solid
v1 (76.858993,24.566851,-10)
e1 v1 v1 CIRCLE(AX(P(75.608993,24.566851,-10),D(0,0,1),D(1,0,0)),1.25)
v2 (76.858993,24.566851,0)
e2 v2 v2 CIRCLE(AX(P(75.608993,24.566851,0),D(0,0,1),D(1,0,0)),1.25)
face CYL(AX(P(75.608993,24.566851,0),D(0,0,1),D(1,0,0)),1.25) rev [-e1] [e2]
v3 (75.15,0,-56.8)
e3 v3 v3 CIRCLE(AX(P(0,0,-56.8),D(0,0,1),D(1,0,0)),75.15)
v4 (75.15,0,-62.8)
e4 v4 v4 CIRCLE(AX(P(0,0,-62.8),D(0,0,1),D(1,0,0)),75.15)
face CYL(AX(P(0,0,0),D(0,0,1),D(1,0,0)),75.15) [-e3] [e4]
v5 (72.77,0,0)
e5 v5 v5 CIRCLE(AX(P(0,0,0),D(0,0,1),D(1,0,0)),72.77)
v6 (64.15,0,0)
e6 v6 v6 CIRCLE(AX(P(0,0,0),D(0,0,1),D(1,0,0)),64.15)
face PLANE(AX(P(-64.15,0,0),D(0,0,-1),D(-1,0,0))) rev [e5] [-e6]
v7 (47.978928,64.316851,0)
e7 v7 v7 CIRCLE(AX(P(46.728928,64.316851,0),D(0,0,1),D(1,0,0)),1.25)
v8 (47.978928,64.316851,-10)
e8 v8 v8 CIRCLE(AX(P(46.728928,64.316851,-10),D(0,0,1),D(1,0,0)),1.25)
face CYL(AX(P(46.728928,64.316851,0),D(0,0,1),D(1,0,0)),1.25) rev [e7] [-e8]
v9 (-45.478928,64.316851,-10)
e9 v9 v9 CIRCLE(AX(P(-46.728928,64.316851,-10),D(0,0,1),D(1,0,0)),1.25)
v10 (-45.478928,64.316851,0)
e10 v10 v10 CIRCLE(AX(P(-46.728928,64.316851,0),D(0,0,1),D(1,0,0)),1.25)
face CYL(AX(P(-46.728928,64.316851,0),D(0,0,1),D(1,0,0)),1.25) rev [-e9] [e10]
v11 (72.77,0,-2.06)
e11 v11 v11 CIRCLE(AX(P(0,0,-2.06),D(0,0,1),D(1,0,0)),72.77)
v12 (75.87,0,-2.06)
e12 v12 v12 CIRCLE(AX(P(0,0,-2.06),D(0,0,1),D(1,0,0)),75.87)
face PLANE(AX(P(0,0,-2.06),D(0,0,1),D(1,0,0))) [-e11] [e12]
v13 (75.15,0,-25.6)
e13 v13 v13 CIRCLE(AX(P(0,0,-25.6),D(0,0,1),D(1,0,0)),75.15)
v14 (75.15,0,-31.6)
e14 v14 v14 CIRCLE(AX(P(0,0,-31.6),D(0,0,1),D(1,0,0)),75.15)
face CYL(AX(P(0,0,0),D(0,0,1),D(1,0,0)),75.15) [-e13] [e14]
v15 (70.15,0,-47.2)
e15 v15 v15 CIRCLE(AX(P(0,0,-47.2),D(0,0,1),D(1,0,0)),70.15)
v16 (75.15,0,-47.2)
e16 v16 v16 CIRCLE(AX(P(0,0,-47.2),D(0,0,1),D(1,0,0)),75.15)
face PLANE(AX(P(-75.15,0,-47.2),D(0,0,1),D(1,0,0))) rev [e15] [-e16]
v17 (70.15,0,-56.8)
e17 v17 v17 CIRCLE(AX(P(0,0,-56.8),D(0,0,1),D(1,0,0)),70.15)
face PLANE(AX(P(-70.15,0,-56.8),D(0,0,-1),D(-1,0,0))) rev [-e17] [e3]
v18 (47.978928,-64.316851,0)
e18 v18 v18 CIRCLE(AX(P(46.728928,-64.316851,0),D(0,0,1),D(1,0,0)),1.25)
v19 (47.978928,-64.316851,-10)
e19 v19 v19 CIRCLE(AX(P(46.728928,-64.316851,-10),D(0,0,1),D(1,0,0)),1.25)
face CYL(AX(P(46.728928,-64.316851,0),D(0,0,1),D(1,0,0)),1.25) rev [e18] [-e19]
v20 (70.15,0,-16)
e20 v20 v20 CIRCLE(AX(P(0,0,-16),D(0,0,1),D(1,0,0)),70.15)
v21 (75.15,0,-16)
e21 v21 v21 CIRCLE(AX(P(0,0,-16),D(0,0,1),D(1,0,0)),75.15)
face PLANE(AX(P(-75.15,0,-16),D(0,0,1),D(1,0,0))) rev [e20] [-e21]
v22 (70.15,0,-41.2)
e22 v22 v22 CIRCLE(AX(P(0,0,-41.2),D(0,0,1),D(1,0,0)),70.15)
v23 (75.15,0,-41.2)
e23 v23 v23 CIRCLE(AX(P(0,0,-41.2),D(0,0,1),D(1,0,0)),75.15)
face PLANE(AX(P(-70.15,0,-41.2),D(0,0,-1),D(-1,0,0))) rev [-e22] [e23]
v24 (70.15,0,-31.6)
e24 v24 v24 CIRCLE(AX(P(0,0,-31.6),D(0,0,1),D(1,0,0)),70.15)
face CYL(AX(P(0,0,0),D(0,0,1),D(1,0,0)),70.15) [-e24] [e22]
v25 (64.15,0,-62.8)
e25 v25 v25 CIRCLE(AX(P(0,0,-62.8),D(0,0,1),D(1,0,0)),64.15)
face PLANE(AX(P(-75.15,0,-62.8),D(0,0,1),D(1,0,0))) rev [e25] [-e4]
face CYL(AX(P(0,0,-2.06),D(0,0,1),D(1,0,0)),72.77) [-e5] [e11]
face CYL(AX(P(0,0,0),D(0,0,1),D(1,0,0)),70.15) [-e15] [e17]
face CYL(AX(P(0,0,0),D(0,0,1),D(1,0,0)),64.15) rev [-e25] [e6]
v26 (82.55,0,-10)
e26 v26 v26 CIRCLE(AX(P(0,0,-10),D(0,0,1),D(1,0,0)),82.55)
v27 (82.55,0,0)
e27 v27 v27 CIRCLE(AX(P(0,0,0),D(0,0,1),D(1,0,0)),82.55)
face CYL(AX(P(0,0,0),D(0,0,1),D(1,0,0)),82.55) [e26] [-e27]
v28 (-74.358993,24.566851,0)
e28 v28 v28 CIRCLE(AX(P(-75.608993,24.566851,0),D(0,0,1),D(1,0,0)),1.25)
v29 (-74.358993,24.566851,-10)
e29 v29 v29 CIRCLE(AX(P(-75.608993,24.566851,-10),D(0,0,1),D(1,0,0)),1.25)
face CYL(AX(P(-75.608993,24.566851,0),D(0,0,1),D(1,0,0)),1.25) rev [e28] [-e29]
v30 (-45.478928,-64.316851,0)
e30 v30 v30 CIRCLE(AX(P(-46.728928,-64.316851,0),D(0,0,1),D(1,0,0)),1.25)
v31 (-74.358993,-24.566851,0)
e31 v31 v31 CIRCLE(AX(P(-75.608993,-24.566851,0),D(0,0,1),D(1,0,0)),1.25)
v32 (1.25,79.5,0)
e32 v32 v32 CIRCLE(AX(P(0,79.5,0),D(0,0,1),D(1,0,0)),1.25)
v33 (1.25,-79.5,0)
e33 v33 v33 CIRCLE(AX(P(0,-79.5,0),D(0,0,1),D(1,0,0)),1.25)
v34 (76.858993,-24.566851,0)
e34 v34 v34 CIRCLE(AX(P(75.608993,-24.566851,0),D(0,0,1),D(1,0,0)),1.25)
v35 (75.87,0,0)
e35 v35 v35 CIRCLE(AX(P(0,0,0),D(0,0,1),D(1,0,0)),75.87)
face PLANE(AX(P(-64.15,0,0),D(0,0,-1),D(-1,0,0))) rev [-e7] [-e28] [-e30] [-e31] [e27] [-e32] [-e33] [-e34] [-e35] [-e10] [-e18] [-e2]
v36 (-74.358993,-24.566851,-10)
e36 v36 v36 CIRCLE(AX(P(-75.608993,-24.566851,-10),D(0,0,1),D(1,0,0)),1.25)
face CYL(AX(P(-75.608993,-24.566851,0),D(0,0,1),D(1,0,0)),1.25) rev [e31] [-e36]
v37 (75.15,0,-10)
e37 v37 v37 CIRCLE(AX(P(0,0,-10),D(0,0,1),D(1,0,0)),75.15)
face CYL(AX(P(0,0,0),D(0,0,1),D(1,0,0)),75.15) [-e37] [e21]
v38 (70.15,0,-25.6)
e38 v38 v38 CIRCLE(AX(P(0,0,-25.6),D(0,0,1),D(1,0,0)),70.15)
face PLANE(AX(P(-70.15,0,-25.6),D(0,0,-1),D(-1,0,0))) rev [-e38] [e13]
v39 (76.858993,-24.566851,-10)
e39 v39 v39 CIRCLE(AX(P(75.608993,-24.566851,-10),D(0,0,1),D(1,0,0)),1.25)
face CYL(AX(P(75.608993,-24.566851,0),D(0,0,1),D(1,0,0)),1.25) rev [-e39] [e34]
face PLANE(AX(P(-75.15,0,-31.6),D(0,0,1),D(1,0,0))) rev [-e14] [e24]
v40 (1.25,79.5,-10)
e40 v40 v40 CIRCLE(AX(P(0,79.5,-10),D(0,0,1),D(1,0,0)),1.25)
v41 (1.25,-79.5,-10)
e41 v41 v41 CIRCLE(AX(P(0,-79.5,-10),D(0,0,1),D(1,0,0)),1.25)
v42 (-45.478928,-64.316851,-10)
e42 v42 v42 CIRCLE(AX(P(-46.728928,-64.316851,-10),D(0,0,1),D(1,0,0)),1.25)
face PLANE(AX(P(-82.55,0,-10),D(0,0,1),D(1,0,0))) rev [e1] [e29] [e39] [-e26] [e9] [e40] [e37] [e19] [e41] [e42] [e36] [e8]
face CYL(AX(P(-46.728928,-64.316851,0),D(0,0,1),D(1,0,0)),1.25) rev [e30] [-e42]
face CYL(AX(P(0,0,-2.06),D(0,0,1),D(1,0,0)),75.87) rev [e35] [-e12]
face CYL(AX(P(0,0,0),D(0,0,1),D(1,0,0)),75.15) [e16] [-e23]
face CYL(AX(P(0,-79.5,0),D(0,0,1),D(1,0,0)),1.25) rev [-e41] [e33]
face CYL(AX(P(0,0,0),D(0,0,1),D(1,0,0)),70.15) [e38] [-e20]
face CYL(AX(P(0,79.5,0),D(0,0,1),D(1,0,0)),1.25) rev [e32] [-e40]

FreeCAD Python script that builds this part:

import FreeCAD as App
import Part
import Sketcher


def add_polygon(sketch, points):
    """Adds a closed chain of lines whose ends are joined by coincident constraints."""
    first, n = sketch.GeometryCount, len(points)
    for a, b in zip(points, points[1:] + points[:1]):
        sketch.addGeometry(Part.LineSegment(App.Vector(*a, 0), App.Vector(*b, 0)), False)
    for i in range(n):
        sketch.addConstraint(Sketcher.Constraint("Coincident", first + i, 2, first + (i + 1) % n, 1))

doc = App.newDocument("Part")
body = doc.addObject("PartDesign::Body", "Body")

# Sketch on XZ plane
sketch1 = body.newObject("Sketcher::SketchObject", "Sketch")
sketch1.AttachmentSupport = (doc.getObject("XZ_Plane"), [""])
sketch1.MapMode = "FlatFace"
add_polygon(sketch1, [(-82.55, -10), (-82.55, 0), (-64.15, 0), (-64.15, -62.8), (-75.15, -62.8), (-75.15, -56.8), (-70.15, -56.8), (-70.15, -47.2), (-75.15, -47.2), (-75.15, -41.2), (-70.15, -41.2), (-70.15, -31.6), (-75.15, -31.6), (-75.15, -25.6), (-70.15, -25.6), (-70.15, -16), (-75.15, -16), (-75.15, -10)])  # lines 0-17
sketch1.addConstraint([
    Sketcher.Constraint("Vertical", 0),
    Sketcher.Constraint("Horizontal", 1),
    Sketcher.Constraint("Vertical", 2),
    Sketcher.Constraint("Horizontal", 3),
    Sketcher.Constraint("Vertical", 4),
    Sketcher.Constraint("Horizontal", 5),
    Sketcher.Constraint("Vertical", 6),
    Sketcher.Constraint("Horizontal", 7),
    Sketcher.Constraint("Vertical", 8),
    Sketcher.Constraint("Horizontal", 9),
    Sketcher.Constraint("Vertical", 10),
    Sketcher.Constraint("Horizontal", 11),
    Sketcher.Constraint("Vertical", 12),
    Sketcher.Constraint("Horizontal", 13),
    Sketcher.Constraint("Vertical", 14),
    Sketcher.Constraint("Horizontal", 15),
    Sketcher.Constraint("Vertical", 16),
    Sketcher.Constraint("Horizontal", 17),
    Sketcher.Constraint("PointOnObject", 0, 2, -1),
    Sketcher.Constraint("Vertical", 4, 2, 7, 2),
    Sketcher.Constraint("Vertical", 6, 2, 9, 2),
    Sketcher.Constraint("Vertical", 8, 2, 11, 2),
    Sketcher.Constraint("Vertical", 10, 2, 13, 2),
    Sketcher.Constraint("Vertical", 12, 2, 15, 2),
    Sketcher.Constraint("Equal", 4, 8),
    Sketcher.Constraint("Equal", 6, 10),
    Sketcher.Constraint("Equal", 8, 12),
    Sketcher.Constraint("Equal", 10, 14),
    Sketcher.Constraint("Equal", 12, 16),
    Sketcher.Constraint("DistanceX", 3, 2, 3, 1, 11.0),
    Sketcher.Constraint("DistanceX", 5, 1, 5, 2, 5.0),
    Sketcher.Constraint("DistanceY", 0, 1, 0, 2, 10.0),
    Sketcher.Constraint("DistanceY", 4, 1, 4, 2, 6.0),
    Sketcher.Constraint("DistanceX", 1, 1, 1, 2, 18.4),
    Sketcher.Constraint("DistanceY", 2, 2, 2, 1, 62.8),
    Sketcher.Constraint("DistanceX", 0, 2, -1, 1, 82.55),
])
revolution = body.newObject("PartDesign::Revolution", "Revolution")
revolution.Profile = sketch1
revolution.ReferenceAxis = (sketch1, ["V_Axis"])
revolution.Angle = 360

# Sketch on XY plane
sketch2 = body.newObject("Sketcher::SketchObject", "Sketch001")
sketch2.AttachmentSupport = (doc.getObject("XY_Plane"), [""])
sketch2.MapMode = "FlatFace"
sketch2.addGeometry([
    Part.Circle(App.Vector(0, 79.5, 0), App.Vector(0, 0, 1), 1.25),  # 0
    Part.Circle(App.Vector(46.728928, 64.316851, 0), App.Vector(0, 0, 1), 1.25),  # 1
    Part.Circle(App.Vector(75.608993, 24.566851, 0), App.Vector(0, 0, 1), 1.25),  # 2
    Part.Circle(App.Vector(75.608993, -24.566851, 0), App.Vector(0, 0, 1), 1.25),  # 3
    Part.Circle(App.Vector(46.728928, -64.316851, 0), App.Vector(0, 0, 1), 1.25),  # 4
    Part.Circle(App.Vector(0, -79.5, 0), App.Vector(0, 0, 1), 1.25),  # 5
    Part.Circle(App.Vector(-46.728928, -64.316851, 0), App.Vector(0, 0, 1), 1.25),  # 6
    Part.Circle(App.Vector(-75.608993, -24.566851, 0), App.Vector(0, 0, 1), 1.25),  # 7
    Part.Circle(App.Vector(-75.608993, 24.566851, 0), App.Vector(0, 0, 1), 1.25),  # 8
    Part.Circle(App.Vector(-46.728928, 64.316851, 0), App.Vector(0, 0, 1), 1.25),  # 9
], False)
sketch2.addConstraint([
    Sketcher.Constraint("Equal", 0, 1),
    Sketcher.Constraint("Equal", 1, 2),
    Sketcher.Constraint("Equal", 2, 3),
    Sketcher.Constraint("Equal", 3, 4),
    Sketcher.Constraint("Equal", 4, 5),
    Sketcher.Constraint("Equal", 5, 6),
    Sketcher.Constraint("Equal", 6, 7),
    Sketcher.Constraint("Equal", 7, 8),
    Sketcher.Constraint("Equal", 8, 9),
    Sketcher.Constraint("Symmetric", 0, 3, 5, 3, -1, 1),
    Sketcher.Constraint("Symmetric", 1, 3, 6, 3, -1, 1),
    Sketcher.Constraint("Symmetric", 2, 3, 7, 3, -1, 1),
    Sketcher.Constraint("Symmetric", 3, 3, 8, 3, -1, 1),
    Sketcher.Constraint("Symmetric", 4, 3, 9, 3, -1, 1),
    Sketcher.Constraint("Symmetric", 4, 3, 6, 3, -2),
    Sketcher.Constraint("Symmetric", 3, 3, 7, 3, -2),
    Sketcher.Constraint("PointOnObject", 0, 3, -2),
    Sketcher.Constraint("Diameter", 0, 2.5),
    Sketcher.Constraint("DistanceY", 5, 3, 0, 3, 159.0),
    Sketcher.Constraint("DistanceY", 2, 3, 1, 3, 39.75),
    Sketcher.Constraint("DistanceY", -1, 1, 1, 3, 64.316851),
    Sketcher.Constraint("DistanceX", 6, 3, 3, 3, 122.337921),
    Sketcher.Constraint("DistanceX", -1, 1, 1, 3, 46.728928),
])
doc.recompute()
hole = body.newObject("PartDesign::Hole", "Hole")
hole.Profile = sketch2
hole.ThreadType = "None"
hole.Diameter = 2.5
hole.DepthType = "ThroughAll"

# Sketch on XY plane
sketch3 = body.newObject("Sketcher::SketchObject", "Sketch002")
sketch3.AttachmentSupport = (doc.getObject("XY_Plane"), [""])
sketch3.MapMode = "FlatFace"
sketch3.addGeometry([
    Part.Circle(App.Vector(0, 0, 0), App.Vector(0, 0, 1), 75.87),
    Part.Circle(App.Vector(0, 0, 0), App.Vector(0, 0, 1), 72.77),
], False)
sketch3.addConstraint([
    Sketcher.Constraint("Coincident", 0, 3, -1, 1),
    Sketcher.Constraint("Coincident", 1, 3, -1, 1),
    Sketcher.Constraint("Diameter", 0, 151.74),
    Sketcher.Constraint("Diameter", 1, 145.54),
])
pocket1 = body.newObject("PartDesign::Pocket", "Pocket")
pocket1.Profile = sketch3
pocket1.Length = 2.06

doc.recompute()
